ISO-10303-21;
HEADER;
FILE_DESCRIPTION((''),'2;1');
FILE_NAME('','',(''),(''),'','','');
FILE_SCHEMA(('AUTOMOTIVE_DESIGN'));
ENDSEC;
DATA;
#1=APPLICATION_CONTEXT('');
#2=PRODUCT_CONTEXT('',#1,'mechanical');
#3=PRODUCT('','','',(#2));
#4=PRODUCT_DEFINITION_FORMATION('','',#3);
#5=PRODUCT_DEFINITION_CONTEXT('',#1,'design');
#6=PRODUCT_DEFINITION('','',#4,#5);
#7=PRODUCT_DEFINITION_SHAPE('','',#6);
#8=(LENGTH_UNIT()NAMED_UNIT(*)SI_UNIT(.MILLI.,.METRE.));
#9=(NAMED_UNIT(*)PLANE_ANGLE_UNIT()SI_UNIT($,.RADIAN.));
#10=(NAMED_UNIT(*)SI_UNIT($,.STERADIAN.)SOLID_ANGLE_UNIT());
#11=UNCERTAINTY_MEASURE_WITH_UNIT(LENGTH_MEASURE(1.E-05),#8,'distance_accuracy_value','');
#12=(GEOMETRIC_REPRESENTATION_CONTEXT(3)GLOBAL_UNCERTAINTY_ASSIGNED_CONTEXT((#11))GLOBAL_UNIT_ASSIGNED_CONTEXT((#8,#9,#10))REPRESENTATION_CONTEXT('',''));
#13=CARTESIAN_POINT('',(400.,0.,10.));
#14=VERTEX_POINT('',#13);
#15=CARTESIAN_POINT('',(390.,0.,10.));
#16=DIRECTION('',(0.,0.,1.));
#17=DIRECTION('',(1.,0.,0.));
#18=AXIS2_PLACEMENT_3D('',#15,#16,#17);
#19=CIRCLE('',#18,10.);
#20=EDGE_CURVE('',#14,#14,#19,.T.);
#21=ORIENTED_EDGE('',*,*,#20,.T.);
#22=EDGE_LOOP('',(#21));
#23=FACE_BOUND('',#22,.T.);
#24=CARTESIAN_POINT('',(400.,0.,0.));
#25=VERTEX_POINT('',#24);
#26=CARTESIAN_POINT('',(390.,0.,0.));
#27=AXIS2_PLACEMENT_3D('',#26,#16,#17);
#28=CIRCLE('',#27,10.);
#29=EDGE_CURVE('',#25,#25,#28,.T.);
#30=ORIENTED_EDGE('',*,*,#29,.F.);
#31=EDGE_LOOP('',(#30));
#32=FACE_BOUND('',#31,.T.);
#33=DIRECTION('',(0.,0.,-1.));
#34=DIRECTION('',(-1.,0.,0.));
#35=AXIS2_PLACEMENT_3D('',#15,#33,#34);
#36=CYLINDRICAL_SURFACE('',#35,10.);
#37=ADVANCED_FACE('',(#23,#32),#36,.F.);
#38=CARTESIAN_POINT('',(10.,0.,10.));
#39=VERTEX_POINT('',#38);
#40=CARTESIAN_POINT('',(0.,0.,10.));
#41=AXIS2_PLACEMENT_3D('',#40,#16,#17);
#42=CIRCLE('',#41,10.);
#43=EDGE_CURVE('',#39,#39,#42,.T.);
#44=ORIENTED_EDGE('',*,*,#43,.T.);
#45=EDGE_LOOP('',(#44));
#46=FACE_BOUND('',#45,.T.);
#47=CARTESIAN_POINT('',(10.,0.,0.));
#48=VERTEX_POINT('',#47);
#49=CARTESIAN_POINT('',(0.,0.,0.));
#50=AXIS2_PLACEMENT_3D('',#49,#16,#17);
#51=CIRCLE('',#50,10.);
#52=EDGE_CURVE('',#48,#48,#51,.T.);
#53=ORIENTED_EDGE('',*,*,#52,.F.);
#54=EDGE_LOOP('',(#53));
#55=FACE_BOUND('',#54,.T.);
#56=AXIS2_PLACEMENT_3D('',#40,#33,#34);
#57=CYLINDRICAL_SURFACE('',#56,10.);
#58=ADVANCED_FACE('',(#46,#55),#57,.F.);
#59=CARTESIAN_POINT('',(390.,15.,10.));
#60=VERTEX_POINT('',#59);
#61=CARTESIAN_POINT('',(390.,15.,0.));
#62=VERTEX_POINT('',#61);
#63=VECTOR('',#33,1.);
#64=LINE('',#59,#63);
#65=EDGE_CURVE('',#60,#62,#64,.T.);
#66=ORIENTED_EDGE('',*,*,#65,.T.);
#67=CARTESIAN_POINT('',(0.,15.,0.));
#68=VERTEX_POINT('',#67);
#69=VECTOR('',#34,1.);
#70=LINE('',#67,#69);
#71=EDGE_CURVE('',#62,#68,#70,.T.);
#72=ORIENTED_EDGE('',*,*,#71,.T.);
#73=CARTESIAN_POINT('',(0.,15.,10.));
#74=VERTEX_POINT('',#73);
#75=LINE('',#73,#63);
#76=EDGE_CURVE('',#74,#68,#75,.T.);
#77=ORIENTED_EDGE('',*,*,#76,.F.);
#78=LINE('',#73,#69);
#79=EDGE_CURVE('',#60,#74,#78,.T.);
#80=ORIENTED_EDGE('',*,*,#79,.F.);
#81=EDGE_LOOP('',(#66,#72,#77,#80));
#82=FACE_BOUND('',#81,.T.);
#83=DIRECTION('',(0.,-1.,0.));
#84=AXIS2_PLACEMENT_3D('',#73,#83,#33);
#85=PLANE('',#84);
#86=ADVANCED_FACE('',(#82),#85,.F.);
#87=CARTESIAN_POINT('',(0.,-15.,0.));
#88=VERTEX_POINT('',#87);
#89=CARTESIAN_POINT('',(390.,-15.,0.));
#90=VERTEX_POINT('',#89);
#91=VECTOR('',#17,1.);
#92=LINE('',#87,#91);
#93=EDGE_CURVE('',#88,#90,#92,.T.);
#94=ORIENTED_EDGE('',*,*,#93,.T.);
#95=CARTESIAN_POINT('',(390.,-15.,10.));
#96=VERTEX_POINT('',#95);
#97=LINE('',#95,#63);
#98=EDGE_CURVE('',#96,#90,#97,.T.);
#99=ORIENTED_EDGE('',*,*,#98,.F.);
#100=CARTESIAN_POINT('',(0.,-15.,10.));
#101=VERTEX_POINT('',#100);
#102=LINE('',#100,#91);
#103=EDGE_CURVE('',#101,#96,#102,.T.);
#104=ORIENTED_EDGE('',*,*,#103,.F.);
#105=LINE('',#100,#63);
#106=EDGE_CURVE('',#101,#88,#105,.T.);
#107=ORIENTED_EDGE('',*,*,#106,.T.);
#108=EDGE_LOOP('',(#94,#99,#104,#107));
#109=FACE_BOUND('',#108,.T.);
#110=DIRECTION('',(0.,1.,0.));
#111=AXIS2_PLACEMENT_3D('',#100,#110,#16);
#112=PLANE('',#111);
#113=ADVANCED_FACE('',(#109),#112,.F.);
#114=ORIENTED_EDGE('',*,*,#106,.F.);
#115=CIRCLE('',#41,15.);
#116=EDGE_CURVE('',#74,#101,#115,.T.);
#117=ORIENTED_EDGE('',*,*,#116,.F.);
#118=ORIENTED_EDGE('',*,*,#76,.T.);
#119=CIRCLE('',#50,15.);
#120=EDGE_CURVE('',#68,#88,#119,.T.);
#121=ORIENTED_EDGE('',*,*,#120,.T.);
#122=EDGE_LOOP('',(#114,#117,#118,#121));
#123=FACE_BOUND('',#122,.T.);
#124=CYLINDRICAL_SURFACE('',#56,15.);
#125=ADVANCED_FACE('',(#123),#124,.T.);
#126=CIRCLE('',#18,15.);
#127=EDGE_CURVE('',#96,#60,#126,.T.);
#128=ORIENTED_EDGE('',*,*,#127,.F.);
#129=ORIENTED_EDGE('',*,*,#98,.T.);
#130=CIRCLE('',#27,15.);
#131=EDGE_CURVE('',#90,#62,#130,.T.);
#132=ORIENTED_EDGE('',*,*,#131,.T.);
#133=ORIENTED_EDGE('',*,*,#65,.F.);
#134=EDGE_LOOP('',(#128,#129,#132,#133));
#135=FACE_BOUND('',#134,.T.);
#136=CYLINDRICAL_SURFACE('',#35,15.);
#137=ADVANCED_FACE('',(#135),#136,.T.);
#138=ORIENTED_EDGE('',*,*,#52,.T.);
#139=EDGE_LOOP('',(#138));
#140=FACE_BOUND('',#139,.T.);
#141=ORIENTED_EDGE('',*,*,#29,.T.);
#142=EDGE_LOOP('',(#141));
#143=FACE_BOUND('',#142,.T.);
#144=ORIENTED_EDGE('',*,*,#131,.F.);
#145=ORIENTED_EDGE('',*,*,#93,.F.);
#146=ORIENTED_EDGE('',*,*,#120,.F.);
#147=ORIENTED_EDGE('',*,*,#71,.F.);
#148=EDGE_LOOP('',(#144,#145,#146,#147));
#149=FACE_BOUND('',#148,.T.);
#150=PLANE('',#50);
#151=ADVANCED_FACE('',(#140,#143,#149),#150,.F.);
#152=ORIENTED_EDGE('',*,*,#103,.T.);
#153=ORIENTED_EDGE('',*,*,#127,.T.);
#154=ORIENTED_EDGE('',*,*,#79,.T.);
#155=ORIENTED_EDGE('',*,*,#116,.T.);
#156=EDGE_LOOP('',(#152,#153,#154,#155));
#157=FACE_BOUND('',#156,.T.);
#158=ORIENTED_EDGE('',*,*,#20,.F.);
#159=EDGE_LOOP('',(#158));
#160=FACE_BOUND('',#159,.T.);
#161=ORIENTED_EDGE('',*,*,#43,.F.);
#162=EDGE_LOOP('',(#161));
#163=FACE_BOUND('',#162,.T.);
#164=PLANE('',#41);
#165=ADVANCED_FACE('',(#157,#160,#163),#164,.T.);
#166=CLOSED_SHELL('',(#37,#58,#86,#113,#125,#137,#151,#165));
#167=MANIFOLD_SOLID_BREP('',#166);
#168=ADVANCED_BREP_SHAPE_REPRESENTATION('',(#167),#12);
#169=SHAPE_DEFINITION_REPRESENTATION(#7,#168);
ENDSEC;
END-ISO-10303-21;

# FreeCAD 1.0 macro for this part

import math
import FreeCAD as App
import Part
import Sketcher

V = App.Vector

doc = App.newDocument("Part")
body = doc.addObject("PartDesign::Body", "Body")

sketch1 = body.newObject("Sketcher::SketchObject", "Sketch")
sketch1.AttachmentSupport = (doc.getObject("XY_Plane"), [""])
sketch1.MapMode = "FlatFace"
sketch1.addGeometry([
    Part.LineSegment(V(390, 15, 0), V(0, 15, 0)),
    Part.ArcOfCircle(Part.Circle(V(0, 0, 0), V(0, 0, 1), 15), math.radians(90), math.radians(270)),
    Part.LineSegment(V(0, -15, 0), V(390, -15, 0)),
    Part.ArcOfCircle(Part.Circle(V(390, 0, 0), V(0, 0, 1), 15), math.radians(-90), math.radians(90)),
    Part.Circle(V(390, 0, 0), V(0, 0, 1), 10),
    Part.Circle(V(0, 0, 0), V(0, 0, 1), 10),
], False)
sketch1.addConstraint([
    Sketcher.Constraint("Tangent", 0, 2, 1, 1),
    Sketcher.Constraint("Tangent", 1, 2, 2, 1),
    Sketcher.Constraint("Tangent", 2, 2, 3, 1),
    Sketcher.Constraint("Tangent", 3, 2, 0, 1),
    Sketcher.Constraint("Horizontal", 0),
    Sketcher.Constraint("Horizontal", 2),
    Sketcher.Constraint("Coincident", 1, 3, -1, 1),
    Sketcher.Constraint("Coincident", 5, 3, -1, 1),
    Sketcher.Constraint("Coincident", 4, 3, 3, 3),
    Sketcher.Constraint("Equal", 4, 5),
    Sketcher.Constraint("Diameter", 4, 20.0),
    Sketcher.Constraint("Radius", 1, 15.0),
    Sketcher.Constraint("DistanceX", 0, 2, 0, 1, 390.0),
])
pad1 = body.newObject("PartDesign::Pad", "Pad")
pad1.Profile = sketch1
pad1.Length = 10

doc.recompute()
